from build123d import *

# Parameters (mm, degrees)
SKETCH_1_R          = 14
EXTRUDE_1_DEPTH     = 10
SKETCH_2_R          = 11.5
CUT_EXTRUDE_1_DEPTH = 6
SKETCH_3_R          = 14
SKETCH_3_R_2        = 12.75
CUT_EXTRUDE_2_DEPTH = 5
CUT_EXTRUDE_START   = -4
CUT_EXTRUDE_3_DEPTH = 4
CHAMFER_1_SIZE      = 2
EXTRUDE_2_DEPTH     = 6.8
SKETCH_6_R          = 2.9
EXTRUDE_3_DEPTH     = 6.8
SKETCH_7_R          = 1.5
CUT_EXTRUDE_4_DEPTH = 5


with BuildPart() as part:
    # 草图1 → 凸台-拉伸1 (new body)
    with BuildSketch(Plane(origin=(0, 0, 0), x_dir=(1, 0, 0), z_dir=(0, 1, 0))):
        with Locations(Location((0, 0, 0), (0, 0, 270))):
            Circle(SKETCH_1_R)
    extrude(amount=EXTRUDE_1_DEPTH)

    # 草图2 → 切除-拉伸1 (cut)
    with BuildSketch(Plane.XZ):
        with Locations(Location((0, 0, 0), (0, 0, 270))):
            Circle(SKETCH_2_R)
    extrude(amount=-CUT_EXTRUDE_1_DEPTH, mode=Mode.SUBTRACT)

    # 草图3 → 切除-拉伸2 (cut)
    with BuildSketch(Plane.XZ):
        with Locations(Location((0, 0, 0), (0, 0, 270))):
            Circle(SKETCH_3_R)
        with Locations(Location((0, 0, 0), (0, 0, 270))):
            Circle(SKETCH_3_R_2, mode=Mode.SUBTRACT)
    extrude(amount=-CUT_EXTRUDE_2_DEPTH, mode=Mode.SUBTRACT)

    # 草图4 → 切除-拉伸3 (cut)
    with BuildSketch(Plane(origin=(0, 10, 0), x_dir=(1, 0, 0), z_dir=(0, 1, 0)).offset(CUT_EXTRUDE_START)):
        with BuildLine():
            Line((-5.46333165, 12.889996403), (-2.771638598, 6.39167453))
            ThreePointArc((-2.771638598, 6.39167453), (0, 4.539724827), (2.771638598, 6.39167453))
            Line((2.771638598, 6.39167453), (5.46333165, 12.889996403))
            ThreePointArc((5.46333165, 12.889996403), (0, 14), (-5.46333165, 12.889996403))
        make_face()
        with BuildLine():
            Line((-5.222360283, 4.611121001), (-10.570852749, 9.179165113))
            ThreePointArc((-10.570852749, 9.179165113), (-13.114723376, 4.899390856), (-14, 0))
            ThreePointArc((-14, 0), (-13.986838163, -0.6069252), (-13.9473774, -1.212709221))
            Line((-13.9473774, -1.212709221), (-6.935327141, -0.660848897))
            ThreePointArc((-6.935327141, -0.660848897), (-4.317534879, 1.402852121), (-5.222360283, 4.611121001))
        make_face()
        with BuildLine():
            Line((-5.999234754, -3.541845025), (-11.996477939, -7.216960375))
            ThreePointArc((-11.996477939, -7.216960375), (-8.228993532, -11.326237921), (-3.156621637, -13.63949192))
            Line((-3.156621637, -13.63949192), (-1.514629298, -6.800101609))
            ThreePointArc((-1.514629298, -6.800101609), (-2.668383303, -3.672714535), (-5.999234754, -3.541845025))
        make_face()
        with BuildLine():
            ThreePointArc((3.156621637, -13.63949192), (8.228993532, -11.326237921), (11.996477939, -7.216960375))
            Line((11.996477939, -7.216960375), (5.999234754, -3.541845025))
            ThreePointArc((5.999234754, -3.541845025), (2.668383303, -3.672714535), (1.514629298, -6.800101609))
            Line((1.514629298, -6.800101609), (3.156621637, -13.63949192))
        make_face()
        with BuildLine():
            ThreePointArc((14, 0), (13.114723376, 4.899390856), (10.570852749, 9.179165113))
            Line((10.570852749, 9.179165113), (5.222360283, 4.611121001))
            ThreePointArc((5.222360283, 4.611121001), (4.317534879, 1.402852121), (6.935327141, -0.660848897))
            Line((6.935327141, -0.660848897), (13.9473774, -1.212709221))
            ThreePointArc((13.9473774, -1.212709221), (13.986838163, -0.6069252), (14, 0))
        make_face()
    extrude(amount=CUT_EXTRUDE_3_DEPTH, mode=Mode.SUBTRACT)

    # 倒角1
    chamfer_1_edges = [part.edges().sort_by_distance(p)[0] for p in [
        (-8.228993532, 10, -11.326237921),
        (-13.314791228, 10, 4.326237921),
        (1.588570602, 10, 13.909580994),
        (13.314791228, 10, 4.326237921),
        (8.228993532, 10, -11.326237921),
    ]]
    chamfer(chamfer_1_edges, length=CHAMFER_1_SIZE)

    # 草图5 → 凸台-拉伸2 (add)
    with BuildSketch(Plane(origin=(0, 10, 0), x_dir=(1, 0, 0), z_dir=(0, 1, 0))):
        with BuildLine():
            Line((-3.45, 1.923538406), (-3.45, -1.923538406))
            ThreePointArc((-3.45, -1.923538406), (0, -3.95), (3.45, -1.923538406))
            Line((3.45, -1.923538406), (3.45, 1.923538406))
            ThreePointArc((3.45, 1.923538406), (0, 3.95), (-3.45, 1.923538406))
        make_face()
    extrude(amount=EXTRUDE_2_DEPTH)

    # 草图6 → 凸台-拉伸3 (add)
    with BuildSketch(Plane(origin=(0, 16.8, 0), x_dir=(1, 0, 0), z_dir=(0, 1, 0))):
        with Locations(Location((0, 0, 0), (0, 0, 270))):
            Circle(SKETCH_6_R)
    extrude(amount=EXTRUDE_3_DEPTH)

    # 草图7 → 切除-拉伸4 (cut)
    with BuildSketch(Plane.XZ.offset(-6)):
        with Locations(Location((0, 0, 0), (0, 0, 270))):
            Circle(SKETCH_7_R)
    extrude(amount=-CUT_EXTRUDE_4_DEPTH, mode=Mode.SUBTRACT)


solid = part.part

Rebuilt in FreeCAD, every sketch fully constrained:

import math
import FreeCAD as App
import Part
import Sketcher
from FreeCAD import Vector
Q = App.Units.Quantity


def edges_at(feature, points):
    """Names of the edges that pass closest to the given points."""
    edges = feature.Shape.Edges
    near = lambda p: min(range(len(edges)), key=lambda i: edges[i].distToShape(Part.Vertex(*p))[0])
    return sorted({f"Edge{near(p) + 1}" for p in points})

doc = App.newDocument("Part")
body = doc.addObject("PartDesign::Body", "Body")

# Sketch on XZ plane
sketch1 = body.newObject("Sketcher::SketchObject", "Sketch")
sketch1.AttachmentSupport = (doc.getObject("XZ_Plane"), [""])
sketch1.MapMode = "FlatFace"
sketch1.addGeometry(Part.Circle(Vector(0, 0, 0), Vector(0, 0, 1), 14), False)
sketch1.addConstraint(Sketcher.Constraint("Coincident", 0, 3, -1, 1))
sketch1.addConstraint(Sketcher.Constraint("Diameter", 0, Q("28 mm")))
pad1 = body.newObject("PartDesign::Pad", "Pad")
pad1.Profile = sketch1
pad1.Length = 10
pad1.Reversed = True

# Sketch on XZ plane
sketch2 = body.newObject("Sketcher::SketchObject", "Sketch001")
sketch2.AttachmentSupport = (doc.getObject("XZ_Plane"), [""])
sketch2.MapMode = "FlatFace"
sketch2.addGeometry(Part.Circle(Vector(0, 0, 0), Vector(0, 0, 1), 11.5), False)
sketch2.addConstraint(Sketcher.Constraint("Coincident", 0, 3, -1, 1))
sketch2.addConstraint(Sketcher.Constraint("Diameter", 0, Q("23 mm")))
pocket1 = body.newObject("PartDesign::Pocket", "Pocket")
pocket1.Profile = sketch2
pocket1.Length = 6

# Sketch on XZ plane
sketch3 = body.newObject("Sketcher::SketchObject", "Sketch002")
sketch3.AttachmentSupport = (doc.getObject("XZ_Plane"), [""])
sketch3.MapMode = "FlatFace"
sketch3.addGeometry(Part.Circle(Vector(0, 0, 0), Vector(0, 0, 1), 14), False)
sketch3.addGeometry(Part.Circle(Vector(0, 0, 0), Vector(0, 0, 1), 12.75), False)
sketch3.addConstraint(Sketcher.Constraint("Coincident", 0, 3, -1, 1))
sketch3.addConstraint(Sketcher.Constraint("Coincident", 1, 3, -1, 1))
sketch3.addConstraint(Sketcher.Constraint("Diameter", 0, Q("28 mm")))
sketch3.addConstraint(Sketcher.Constraint("Diameter", 1, Q("25.5 mm")))
pocket2 = body.newObject("PartDesign::Pocket", "Pocket001")
pocket2.Profile = sketch3
pocket2.Length = 5

# Sketch on XZ plane
sketch4 = body.newObject("Sketcher::SketchObject", "Sketch003")
sketch4.AttachmentSupport = (doc.getObject("XZ_Plane"), [""])
sketch4.MapMode = "FlatFace"
sketch4.AttachmentOffset = App.Placement(Vector(0, 0, -6), App.Rotation())
sketch4.addGeometry(Part.LineSegment(Vector(-5.463332, -12.889996, 0), Vector(-2.771639, -6.391675, 0)), False)
sketch4.addGeometry(Part.ArcOfCircle(Part.Circle(Vector(0, -7.539725, 0), Vector(0, 0, 1), 3), math.radians(22.5), math.radians(157.5)), False)
sketch4.addGeometry(Part.LineSegment(Vector(2.771639, -6.391675, 0), Vector(5.463332, -12.889996, 0)), False)
sketch4.addGeometry(Part.ArcOfCircle(Part.Circle(Vector(0, 0, 0), Vector(0, 0, 1), 14), math.radians(-112.969308), math.radians(-67.030692)), False)
sketch4.addGeometry(Part.LineSegment(Vector(-5.22236, -4.611121, 0), Vector(-10.570853, -9.179165, 0)), False)
sketch4.addGeometry(Part.ArcOfCircle(Part.Circle(Vector(0, 0, 0), Vector(0, 0, 1), 14), math.radians(-180), math.radians(-139.030692)), False)
sketch4.addGeometry(Part.ArcOfCircle(Part.Circle(Vector(0, 0, 0), Vector(0, 0, 1), 14), math.radians(175.030692), math.radians(180)), False)
sketch4.addGeometry(Part.LineSegment(Vector(-13.947377, 1.212709, 0), Vector(-6.935327, 0.660849, 0)), False)
sketch4.addGeometry(Part.ArcOfCircle(Part.Circle(Vector(-7.170704, -2.329903, 0), Vector(0, 0, 1), 3), math.radians(-49.5), math.radians(85.5)), False)
sketch4.addGeometry(Part.LineSegment(Vector(-5.999235, 3.541845, 0), Vector(-11.996478, 7.21696, 0)), False)
sketch4.addGeometry(Part.ArcOfCircle(Part.Circle(Vector(0, 0, 0), Vector(0, 0, 1), 14), math.radians(103.030692), math.radians(148.969308)), False)
sketch4.addGeometry(Part.LineSegment(Vector(-3.156622, 13.639492, 0), Vector(-1.514629, 6.800102, 0)), False)
sketch4.addGeometry(Part.ArcOfCircle(Part.Circle(Vector(-4.431739, 6.099766, 0), Vector(0, 0, 1), 3), math.radians(-121.5), math.radians(13.5)), False)
sketch4.addGeometry(Part.ArcOfCircle(Part.Circle(Vector(0, 0, 0), Vector(0, 0, 1), 14), math.radians(31.030692), math.radians(76.969308)), False)
sketch4.addGeometry(Part.LineSegment(Vector(11.996478, 7.21696, 0), Vector(5.999235, 3.541845, 0)), False)
sketch4.addGeometry(Part.ArcOfCircle(Part.Circle(Vector(4.431739, 6.099766, 0), Vector(0, 0, 1), 3), math.radians(166.5), math.radians(301.5)), False)
sketch4.addGeometry(Part.LineSegment(Vector(1.514629, 6.800102, 0), Vector(3.156622, 13.639492, 0)), False)
sketch4.addGeometry(Part.ArcOfCircle(Part.Circle(Vector(0, 0, 0), Vector(0, 0, 1), 14), math.radians(-40.969308), math.radians(0)), False)
sketch4.addGeometry(Part.LineSegment(Vector(10.570853, -9.179165, 0), Vector(5.22236, -4.611121, 0)), False)
sketch4.addGeometry(Part.ArcOfCircle(Part.Circle(Vector(7.170704, -2.329903, 0), Vector(0, 0, 1), 3), math.radians(94.5), math.radians(229.5)), False)
sketch4.addGeometry(Part.LineSegment(Vector(6.935327, 0.660849, 0), Vector(13.947377, 1.212709, 0)), False)
sketch4.addGeometry(Part.ArcOfCircle(Part.Circle(Vector(0, 0, 0), Vector(0, 0, 1), 14), math.radians(0), math.radians(4.969308)), False)
sketch4.addConstraint(Sketcher.Constraint("Tangent", 0, 2, 1, 2))
sketch4.addConstraint(Sketcher.Constraint("Tangent", 1, 1, 2, 1))
sketch4.addConstraint(Sketcher.Constraint("Coincident", 2, 2, 3, 2))
sketch4.addConstraint(Sketcher.Constraint("Coincident", 3, 1, 0, 1))
sketch4.addConstraint(Sketcher.Constraint("Coincident", 4, 2, 5, 2))
sketch4.addConstraint(Sketcher.Constraint("Tangent", 5, 1, 6, 2))
sketch4.addConstraint(Sketcher.Constraint("Coincident", 6, 1, 7, 1))
sketch4.addConstraint(Sketcher.Constraint("Tangent", 7, 2, 8, 2))
sketch4.addConstraint(Sketcher.Constraint("Tangent", 8, 1, 4, 1))
sketch4.addConstraint(Sketcher.Constraint("Coincident", 9, 2, 10, 2))
sketch4.addConstraint(Sketcher.Constraint("Coincident", 10, 1, 11, 1))
sketch4.addConstraint(Sketcher.Constraint("Tangent", 11, 2, 12, 2))
sketch4.addConstraint(Sketcher.Constraint("Tangent", 12, 1, 9, 1))
sketch4.addConstraint(Sketcher.Constraint("Coincident", 13, 1, 14, 1))
sketch4.addConstraint(Sketcher.Constraint("Tangent", 14, 2, 15, 2))
sketch4.addConstraint(Sketcher.Constraint("Tangent", 15, 1, 16, 1))
sketch4.addConstraint(Sketcher.Constraint("Coincident", 16, 2, 13, 2))
sketch4.addConstraint(Sketcher.Constraint("Coincident", 17, 1, 18, 1))
sketch4.addConstraint(Sketcher.Constraint("Tangent", 18, 2, 19, 2))
sketch4.addConstraint(Sketcher.Constraint("Tangent", 19, 1, 20, 1))
sketch4.addConstraint(Sketcher.Constraint("Coincident", 20, 2, 21, 2))
sketch4.addConstraint(Sketcher.Constraint("Tangent", 21, 1, 17, 2))
sketch4.addConstraint(Sketcher.Constraint("Coincident", 3, 3, -1, 1))
sketch4.addConstraint(Sketcher.Constraint("Coincident", 5, 3, -1, 1))
sketch4.addConstraint(Sketcher.Constraint("Coincident", 10, 3, -1, 1))
sketch4.addConstraint(Sketcher.Constraint("Coincident", 13, 3, -1, 1))
sketch4.addConstraint(Sketcher.Constraint("Coincident", 17, 3, -1, 1))
sketch4.addConstraint(Sketcher.Constraint("Equal", 3, 5))
sketch4.addConstraint(Sketcher.Constraint("Equal", 5, 6))
sketch4.addConstraint(Sketcher.Constraint("Equal", 1, 8))
sketch4.addConstraint(Sketcher.Constraint("Equal", 6, 10))
sketch4.addConstraint(Sketcher.Constraint("Equal", 8, 12))
sketch4.addConstraint(Sketcher.Constraint("Equal", 10, 13))
sketch4.addConstraint(Sketcher.Constraint("Equal", 12, 15))
sketch4.addConstraint(Sketcher.Constraint("Equal", 13, 17))
sketch4.addConstraint(Sketcher.Constraint("Equal", 15, 19))
sketch4.addConstraint(Sketcher.Constraint("Equal", 17, 21))
sketch4.addConstraint(Sketcher.Constraint("Symmetric", 12, 3, 15, 3, -2))
sketch4.addConstraint(Sketcher.Constraint("Symmetric", 8, 3, 19, 3, -2))
sketch4.addConstraint(Sketcher.Constraint("Symmetric", 0, 2, 1, 1, -2))
sketch4.addConstraint(Sketcher.Constraint("PointOnObject", 5, 1, -1))
sketch4.addConstraint(Sketcher.Constraint("PointOnObject", 21, 1, -1))
sketch4.addConstraint(Sketcher.Constraint("Horizontal", 9, 2, 13, 1))
sketch4.addConstraint(Sketcher.Constraint("Horizontal", 11, 2, 15, 1))
sketch4.addConstraint(Sketcher.Constraint("Horizontal", 4, 2, 17, 1))
sketch4.addConstraint(Sketcher.Constraint("Horizontal", 7, 2, 19, 1))
sketch4.addConstraint(Sketcher.Constraint("Equal", 2, 4))
sketch4.addConstraint(Sketcher.Constraint("Equal", 4, 7))
sketch4.addConstraint(Sketcher.Constraint("Equal", 7, 9))
sketch4.addConstraint(Sketcher.Constraint("Equal", 9, 11))
sketch4.addConstraint(Sketcher.Constraint("Radius", 1, Q("3 mm")))
sketch4.addConstraint(Sketcher.Constraint("Radius", 3, Q("14 mm")))
sketch4.addConstraint(Sketcher.Constraint("Angle", 0, Q("67.5 deg")))
sketch4.addConstraint(Sketcher.Constraint("Angle", 4, Q("-139.5 deg")))
sketch4.addConstraint(Sketcher.Constraint("Angle", 7, Q("-4.5 deg")))
sketch4.addConstraint(Sketcher.Constraint("Angle", 9, Q("148.5 deg")))
sketch4.addConstraint(Sketcher.Constraint("Angle", 11, Q("-76.5 deg")))
sketch4.addConstraint(Sketcher.Constraint("DistanceY", -1, 1, 11, 2, Q("6.800102 mm")))
pocket3 = body.newObject("PartDesign::Pocket", "Pocket002")
pocket3.Profile = sketch4
pocket3.Length = 4
doc.recompute()

chamfer = body.newObject("PartDesign::Chamfer", "Chamfer")
chamfer.Base = (pocket3, edges_at(pocket3, [
    (-8.229, 10, -11.326),
    (-13.315, 10, 4.326),
    (1.589, 10, 13.91),
    (13.315, 10, 4.326),
    (8.229, 10, -11.326),
]))
chamfer.Size = 2

# Sketch on XZ plane
sketch5 = body.newObject("Sketcher::SketchObject", "Sketch004")
sketch5.AttachmentSupport = (doc.getObject("XZ_Plane"), [""])
sketch5.MapMode = "FlatFace"
sketch5.AttachmentOffset = App.Placement(Vector(0, 0, -10), App.Rotation())
sketch5.addGeometry(Part.LineSegment(Vector(-3.45, -1.923538, 0), Vector(-3.45, 1.923538, 0)), False)
sketch5.addGeometry(Part.ArcOfCircle(Part.Circle(Vector(0, 0, 0), Vector(0, 0, 1), 3.95), math.radians(29.141737), math.radians(150.858263)), False)
sketch5.addGeometry(Part.LineSegment(Vector(3.45, 1.923538, 0), Vector(3.45, -1.923538, 0)), False)
sketch5.addGeometry(Part.ArcOfCircle(Part.Circle(Vector(0, 0, 0), Vector(0, 0, 1), 3.95), math.radians(-150.858263), math.radians(-29.141737)), False)
sketch5.addConstraint(Sketcher.Constraint("Coincident", 0, 2, 1, 2))
sketch5.addConstraint(Sketcher.Constraint("Coincident", 1, 1, 2, 1))
sketch5.addConstraint(Sketcher.Constraint("Coincident", 2, 2, 3, 2))
sketch5.addConstraint(Sketcher.Constraint("Coincident", 3, 1, 0, 1))
sketch5.addConstraint(Sketcher.Constraint("Vertical", 0))
sketch5.addConstraint(Sketcher.Constraint("Vertical", 2))
sketch5.addConstraint(Sketcher.Constraint("Coincident", 1, 3, -1, 1))
sketch5.addConstraint(Sketcher.Constraint("Coincident", 3, 3, -1, 1))
sketch5.addConstraint(Sketcher.Constraint("Equal", 1, 3))
sketch5.addConstraint(Sketcher.Constraint("Horizontal", 0, 2, 1, 1))
sketch5.addConstraint(Sketcher.Constraint("Radius", 1, Q("3.95 mm")))
sketch5.addConstraint(Sketcher.Constraint("DistanceX", 0, 2, 1, 1, Q("6.9 mm")))
pad2 = body.newObject("PartDesign::Pad", "Pad001")
pad2.Profile = sketch5
pad2.Length = 6.8
pad2.Reversed = True

# Sketch on XZ plane
sketch6 = body.newObject("Sketcher::SketchObject", "Sketch005")
sketch6.AttachmentSupport = (doc.getObject("XZ_Plane"), [""])
sketch6.MapMode = "FlatFace"
sketch6.AttachmentOffset = App.Placement(Vector(0, 0, -16.8), App.Rotation())
sketch6.addGeometry(Part.Circle(Vector(0, 0, 0), Vector(0, 0, 1), 2.9), False)
sketch6.addConstraint(Sketcher.Constraint("Coincident", 0, 3, -1, 1))
sketch6.addConstraint(Sketcher.Constraint("Diameter", 0, Q("5.8 mm")))
pad3 = body.newObject("PartDesign::Pad", "Pad002")
pad3.Profile = sketch6
pad3.Length = 6.8
pad3.Reversed = True

# Sketch on XZ plane
sketch7 = body.newObject("Sketcher::SketchObject", "Sketch006")
sketch7.AttachmentSupport = (doc.getObject("XZ_Plane"), [""])
sketch7.MapMode = "FlatFace"
sketch7.AttachmentOffset = App.Placement(Vector(0, 0, -6), App.Rotation())
sketch7.addGeometry(Part.Circle(Vector(0, 0, 0), Vector(0, 0, 1), 1.5), False)
sketch7.addConstraint(Sketcher.Constraint("Coincident", 0, 3, -1, 1))
sketch7.addConstraint(Sketcher.Constraint("Diameter", 0, Q("3 mm")))
pocket4 = body.newObject("PartDesign::Pocket", "Pocket003")
pocket4.Profile = sketch7
pocket4.Length = 5

doc.recompute()
